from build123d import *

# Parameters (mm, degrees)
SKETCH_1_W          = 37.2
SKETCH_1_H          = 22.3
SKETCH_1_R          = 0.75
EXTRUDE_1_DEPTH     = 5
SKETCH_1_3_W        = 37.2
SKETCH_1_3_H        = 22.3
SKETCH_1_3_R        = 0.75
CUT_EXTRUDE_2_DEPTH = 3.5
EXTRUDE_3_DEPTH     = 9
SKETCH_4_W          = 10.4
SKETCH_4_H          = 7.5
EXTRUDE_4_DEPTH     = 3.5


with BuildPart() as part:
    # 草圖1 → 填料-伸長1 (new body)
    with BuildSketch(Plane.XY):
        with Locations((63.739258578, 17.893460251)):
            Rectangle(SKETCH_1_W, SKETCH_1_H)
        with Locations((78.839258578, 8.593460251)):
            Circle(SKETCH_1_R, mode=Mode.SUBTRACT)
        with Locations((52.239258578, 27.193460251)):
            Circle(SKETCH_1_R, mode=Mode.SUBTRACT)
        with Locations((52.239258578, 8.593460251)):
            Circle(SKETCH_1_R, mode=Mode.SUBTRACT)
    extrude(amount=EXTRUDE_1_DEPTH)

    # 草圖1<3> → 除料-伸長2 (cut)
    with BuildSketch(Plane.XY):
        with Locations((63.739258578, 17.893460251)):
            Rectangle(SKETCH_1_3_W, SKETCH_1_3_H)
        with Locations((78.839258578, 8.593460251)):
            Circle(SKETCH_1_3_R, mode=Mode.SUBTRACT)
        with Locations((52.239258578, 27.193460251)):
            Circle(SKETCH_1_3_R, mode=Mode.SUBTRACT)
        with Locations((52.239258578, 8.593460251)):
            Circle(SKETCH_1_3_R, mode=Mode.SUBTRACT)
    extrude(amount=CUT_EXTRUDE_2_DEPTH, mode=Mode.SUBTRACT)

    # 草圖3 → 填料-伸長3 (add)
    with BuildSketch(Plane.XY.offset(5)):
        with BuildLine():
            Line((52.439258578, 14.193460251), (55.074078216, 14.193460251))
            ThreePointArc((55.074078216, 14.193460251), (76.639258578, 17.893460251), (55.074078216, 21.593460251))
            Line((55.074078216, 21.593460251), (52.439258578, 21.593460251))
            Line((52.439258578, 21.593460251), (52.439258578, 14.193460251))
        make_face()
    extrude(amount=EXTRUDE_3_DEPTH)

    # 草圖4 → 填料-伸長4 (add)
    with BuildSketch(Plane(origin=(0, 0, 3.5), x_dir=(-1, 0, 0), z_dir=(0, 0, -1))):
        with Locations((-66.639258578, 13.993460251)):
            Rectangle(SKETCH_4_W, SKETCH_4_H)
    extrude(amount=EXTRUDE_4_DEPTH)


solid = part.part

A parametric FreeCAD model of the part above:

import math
import FreeCAD as App
import Part
import Sketcher

V = App.Vector


def add_polygon(sketch, points):
    """Adds a closed chain of lines whose ends are joined by coincident constraints."""
    first, n = sketch.GeometryCount, len(points)
    for a, b in zip(points, points[1:] + points[:1]):
        sketch.addGeometry(Part.LineSegment(App.Vector(*a, 0), App.Vector(*b, 0)), False)
    for i in range(n):
        sketch.addConstraint(Sketcher.Constraint("Coincident", first + i, 2, first + (i + 1) % n, 1))

doc = App.newDocument("Part")
body = doc.addObject("PartDesign::Body", "Body")

# Sketch on XY plane
sketch1 = body.newObject("Sketcher::SketchObject", "Sketch")
sketch1.AttachmentSupport = (doc.getObject("XY_Plane"), [""])
sketch1.MapMode = "FlatFace"
add_polygon(sketch1, [(45.1, 29), (45.1, 6.7), (82.3, 6.7), (82.3, 29)])  # lines 0-3
sketch1.addGeometry(Part.Circle(V(52.2, 8.6, 0), V(0, 0, 1), 0.8), False)  # 4
sketch1.addGeometry(Part.Circle(V(78.8, 8.6, 0), V(0, 0, 1), 0.8), False)  # 5
sketch1.addGeometry(Part.Circle(V(52.2, 27.2, 0), V(0, 0, 1), 0.8), False)  # 6
sketch1.addConstraint([
    Sketcher.Constraint("Vertical", 0),
    Sketcher.Constraint("Horizontal", 1),
    Sketcher.Constraint("Vertical", 2),
    Sketcher.Constraint("Horizontal", 3),
    Sketcher.Constraint("Equal", 4, 5),
    Sketcher.Constraint("Equal", 5, 6),
    Sketcher.Constraint("Horizontal", 4, 3, 5, 3),
    Sketcher.Constraint("Vertical", 4, 3, 6, 3),
    Sketcher.Constraint("Diameter", 4, 1.5),
    Sketcher.Constraint("DistanceX", 1, 1, 1, 2, 37.2),
    Sketcher.Constraint("DistanceY", 0, 2, 0, 1, 22.3),
    Sketcher.Constraint("DistanceX", 4, 3, 5, 3, 26.6),
    Sketcher.Constraint("DistanceY", 4, 3, 6, 3, 18.6),
    Sketcher.Constraint("DistanceX", 0, 2, 4, 3, 7.1),
    Sketcher.Constraint("DistanceY", 0, 2, 4, 3, 1.85),
    Sketcher.Constraint("DistanceX", -1, 1, 4, 3, 52.239259),
    Sketcher.Constraint("DistanceY", -1, 1, 4, 3, 8.59346),
])
pad1 = body.newObject("PartDesign::Pad", "Pad")
pad1.Profile = sketch1
pad1.Length = 5

# Sketch on XY plane
sketch2 = body.newObject("Sketcher::SketchObject", "Sketch001")
sketch2.AttachmentSupport = (doc.getObject("XY_Plane"), [""])
sketch2.MapMode = "FlatFace"
add_polygon(sketch2, [(45.1, 29), (45.1, 6.7), (82.3, 6.7), (82.3, 29)])  # lines 0-3
sketch2.addGeometry(Part.Circle(V(52.2, 8.6, 0), V(0, 0, 1), 0.8), False)  # 4
sketch2.addGeometry(Part.Circle(V(78.8, 8.6, 0), V(0, 0, 1), 0.8), False)  # 5
sketch2.addGeometry(Part.Circle(V(52.2, 27.2, 0), V(0, 0, 1), 0.8), False)  # 6
sketch2.addConstraint([
    Sketcher.Constraint("Vertical", 0),
    Sketcher.Constraint("Horizontal", 1),
    Sketcher.Constraint("Vertical", 2),
    Sketcher.Constraint("Horizontal", 3),
    Sketcher.Constraint("Equal", 4, 5),
    Sketcher.Constraint("Equal", 5, 6),
    Sketcher.Constraint("Horizontal", 4, 3, 5, 3),
    Sketcher.Constraint("Vertical", 4, 3, 6, 3),
    Sketcher.Constraint("Diameter", 4, 1.5),
    Sketcher.Constraint("DistanceX", 1, 1, 1, 2, 37.2),
    Sketcher.Constraint("DistanceY", 0, 2, 0, 1, 22.3),
    Sketcher.Constraint("DistanceX", 4, 3, 5, 3, 26.6),
    Sketcher.Constraint("DistanceY", 4, 3, 6, 3, 18.6),
    Sketcher.Constraint("DistanceX", 0, 2, 4, 3, 7.1),
    Sketcher.Constraint("DistanceY", 0, 2, 4, 3, 1.85),
    Sketcher.Constraint("DistanceX", -1, 1, 4, 3, 52.239259),
    Sketcher.Constraint("DistanceY", -1, 1, 4, 3, 8.59346),
])
pocket1 = body.newObject("PartDesign::Pocket", "Pocket")
pocket1.Profile = sketch2
pocket1.Length = 3.5
pocket1.Reversed = True

# Sketch on XY plane
sketch3 = body.newObject("Sketcher::SketchObject", "Sketch002")
sketch3.AttachmentSupport = (doc.getObject("XY_Plane"), [""])
sketch3.MapMode = "FlatFace"
sketch3.AttachmentOffset = App.Placement(V(0, 0, 5), App.Rotation())
sketch3.addGeometry([
    Part.LineSegment(V(52.4, 14.2, 0), V(55.1, 14.2, 0)),
    Part.ArcOfCircle(Part.Circle(V(65.5, 17.9, 0), V(0, 0, 1), 11.1), math.radians(-161), math.radians(161)),
    Part.LineSegment(V(55.1, 21.6, 0), V(52.4, 21.6, 0)),
    Part.LineSegment(V(52.4, 21.6, 0), V(52.4, 14.2, 0)),
], False)
sketch3.addConstraint([
    Sketcher.Constraint("Coincident", 0, 2, 1, 1),
    Sketcher.Constraint("Coincident", 1, 2, 2, 1),
    Sketcher.Constraint("Coincident", 2, 2, 3, 1),
    Sketcher.Constraint("Coincident", 3, 2, 0, 1),
    Sketcher.Constraint("Horizontal", 0),
    Sketcher.Constraint("Horizontal", 2),
    Sketcher.Constraint("Vertical", 3),
    Sketcher.Constraint("Vertical", 0, 2, 1, 2),
    Sketcher.Constraint("Radius", 1, 11.1),
    Sketcher.Constraint("DistanceY", 3, 2, 3, 1, 7.4),
    Sketcher.Constraint("DistanceX", 2, 2, 1, 3, 13.1),
    Sketcher.Constraint("DistanceX", -1, 1, 1, 3, 65.539259),
    Sketcher.Constraint("DistanceY", -1, 1, 1, 3, 17.89346),
])
pad2 = body.newObject("PartDesign::Pad", "Pad001")
pad2.Profile = sketch3
pad2.Length = 9

# Sketch on XY plane
sketch4 = body.newObject("Sketcher::SketchObject", "Sketch003")
sketch4.AttachmentSupport = (doc.getObject("XY_Plane"), [""])
sketch4.MapMode = "FlatFace"
sketch4.AttachmentOffset = App.Placement(V(0, 0, 3.5), App.Rotation())
add_polygon(sketch4, [(72, 18), (72, 10), (61, 10), (61, 18)])  # lines 0-3
sketch4.addConstraint([
    Sketcher.Constraint("Vertical", 0),
    Sketcher.Constraint("Horizontal", 1),
    Sketcher.Constraint("Vertical", 2),
    Sketcher.Constraint("Horizontal", 3),
    Sketcher.Constraint("DistanceX", 1, 2, 1, 1, 10.4),
    Sketcher.Constraint("DistanceY", 0, 2, 0, 1, 7.5),
    Sketcher.Constraint("DistanceX", -1, 1, 0, 2, 71.839259),
    Sketcher.Constraint("DistanceY", -1, 1, 0, 2, 10.24346),
])
pad3 = body.newObject("PartDesign::Pad", "Pad002")
pad3.Profile = sketch4
pad3.Length = 3.5
pad3.Reversed = True

doc.recompute()
